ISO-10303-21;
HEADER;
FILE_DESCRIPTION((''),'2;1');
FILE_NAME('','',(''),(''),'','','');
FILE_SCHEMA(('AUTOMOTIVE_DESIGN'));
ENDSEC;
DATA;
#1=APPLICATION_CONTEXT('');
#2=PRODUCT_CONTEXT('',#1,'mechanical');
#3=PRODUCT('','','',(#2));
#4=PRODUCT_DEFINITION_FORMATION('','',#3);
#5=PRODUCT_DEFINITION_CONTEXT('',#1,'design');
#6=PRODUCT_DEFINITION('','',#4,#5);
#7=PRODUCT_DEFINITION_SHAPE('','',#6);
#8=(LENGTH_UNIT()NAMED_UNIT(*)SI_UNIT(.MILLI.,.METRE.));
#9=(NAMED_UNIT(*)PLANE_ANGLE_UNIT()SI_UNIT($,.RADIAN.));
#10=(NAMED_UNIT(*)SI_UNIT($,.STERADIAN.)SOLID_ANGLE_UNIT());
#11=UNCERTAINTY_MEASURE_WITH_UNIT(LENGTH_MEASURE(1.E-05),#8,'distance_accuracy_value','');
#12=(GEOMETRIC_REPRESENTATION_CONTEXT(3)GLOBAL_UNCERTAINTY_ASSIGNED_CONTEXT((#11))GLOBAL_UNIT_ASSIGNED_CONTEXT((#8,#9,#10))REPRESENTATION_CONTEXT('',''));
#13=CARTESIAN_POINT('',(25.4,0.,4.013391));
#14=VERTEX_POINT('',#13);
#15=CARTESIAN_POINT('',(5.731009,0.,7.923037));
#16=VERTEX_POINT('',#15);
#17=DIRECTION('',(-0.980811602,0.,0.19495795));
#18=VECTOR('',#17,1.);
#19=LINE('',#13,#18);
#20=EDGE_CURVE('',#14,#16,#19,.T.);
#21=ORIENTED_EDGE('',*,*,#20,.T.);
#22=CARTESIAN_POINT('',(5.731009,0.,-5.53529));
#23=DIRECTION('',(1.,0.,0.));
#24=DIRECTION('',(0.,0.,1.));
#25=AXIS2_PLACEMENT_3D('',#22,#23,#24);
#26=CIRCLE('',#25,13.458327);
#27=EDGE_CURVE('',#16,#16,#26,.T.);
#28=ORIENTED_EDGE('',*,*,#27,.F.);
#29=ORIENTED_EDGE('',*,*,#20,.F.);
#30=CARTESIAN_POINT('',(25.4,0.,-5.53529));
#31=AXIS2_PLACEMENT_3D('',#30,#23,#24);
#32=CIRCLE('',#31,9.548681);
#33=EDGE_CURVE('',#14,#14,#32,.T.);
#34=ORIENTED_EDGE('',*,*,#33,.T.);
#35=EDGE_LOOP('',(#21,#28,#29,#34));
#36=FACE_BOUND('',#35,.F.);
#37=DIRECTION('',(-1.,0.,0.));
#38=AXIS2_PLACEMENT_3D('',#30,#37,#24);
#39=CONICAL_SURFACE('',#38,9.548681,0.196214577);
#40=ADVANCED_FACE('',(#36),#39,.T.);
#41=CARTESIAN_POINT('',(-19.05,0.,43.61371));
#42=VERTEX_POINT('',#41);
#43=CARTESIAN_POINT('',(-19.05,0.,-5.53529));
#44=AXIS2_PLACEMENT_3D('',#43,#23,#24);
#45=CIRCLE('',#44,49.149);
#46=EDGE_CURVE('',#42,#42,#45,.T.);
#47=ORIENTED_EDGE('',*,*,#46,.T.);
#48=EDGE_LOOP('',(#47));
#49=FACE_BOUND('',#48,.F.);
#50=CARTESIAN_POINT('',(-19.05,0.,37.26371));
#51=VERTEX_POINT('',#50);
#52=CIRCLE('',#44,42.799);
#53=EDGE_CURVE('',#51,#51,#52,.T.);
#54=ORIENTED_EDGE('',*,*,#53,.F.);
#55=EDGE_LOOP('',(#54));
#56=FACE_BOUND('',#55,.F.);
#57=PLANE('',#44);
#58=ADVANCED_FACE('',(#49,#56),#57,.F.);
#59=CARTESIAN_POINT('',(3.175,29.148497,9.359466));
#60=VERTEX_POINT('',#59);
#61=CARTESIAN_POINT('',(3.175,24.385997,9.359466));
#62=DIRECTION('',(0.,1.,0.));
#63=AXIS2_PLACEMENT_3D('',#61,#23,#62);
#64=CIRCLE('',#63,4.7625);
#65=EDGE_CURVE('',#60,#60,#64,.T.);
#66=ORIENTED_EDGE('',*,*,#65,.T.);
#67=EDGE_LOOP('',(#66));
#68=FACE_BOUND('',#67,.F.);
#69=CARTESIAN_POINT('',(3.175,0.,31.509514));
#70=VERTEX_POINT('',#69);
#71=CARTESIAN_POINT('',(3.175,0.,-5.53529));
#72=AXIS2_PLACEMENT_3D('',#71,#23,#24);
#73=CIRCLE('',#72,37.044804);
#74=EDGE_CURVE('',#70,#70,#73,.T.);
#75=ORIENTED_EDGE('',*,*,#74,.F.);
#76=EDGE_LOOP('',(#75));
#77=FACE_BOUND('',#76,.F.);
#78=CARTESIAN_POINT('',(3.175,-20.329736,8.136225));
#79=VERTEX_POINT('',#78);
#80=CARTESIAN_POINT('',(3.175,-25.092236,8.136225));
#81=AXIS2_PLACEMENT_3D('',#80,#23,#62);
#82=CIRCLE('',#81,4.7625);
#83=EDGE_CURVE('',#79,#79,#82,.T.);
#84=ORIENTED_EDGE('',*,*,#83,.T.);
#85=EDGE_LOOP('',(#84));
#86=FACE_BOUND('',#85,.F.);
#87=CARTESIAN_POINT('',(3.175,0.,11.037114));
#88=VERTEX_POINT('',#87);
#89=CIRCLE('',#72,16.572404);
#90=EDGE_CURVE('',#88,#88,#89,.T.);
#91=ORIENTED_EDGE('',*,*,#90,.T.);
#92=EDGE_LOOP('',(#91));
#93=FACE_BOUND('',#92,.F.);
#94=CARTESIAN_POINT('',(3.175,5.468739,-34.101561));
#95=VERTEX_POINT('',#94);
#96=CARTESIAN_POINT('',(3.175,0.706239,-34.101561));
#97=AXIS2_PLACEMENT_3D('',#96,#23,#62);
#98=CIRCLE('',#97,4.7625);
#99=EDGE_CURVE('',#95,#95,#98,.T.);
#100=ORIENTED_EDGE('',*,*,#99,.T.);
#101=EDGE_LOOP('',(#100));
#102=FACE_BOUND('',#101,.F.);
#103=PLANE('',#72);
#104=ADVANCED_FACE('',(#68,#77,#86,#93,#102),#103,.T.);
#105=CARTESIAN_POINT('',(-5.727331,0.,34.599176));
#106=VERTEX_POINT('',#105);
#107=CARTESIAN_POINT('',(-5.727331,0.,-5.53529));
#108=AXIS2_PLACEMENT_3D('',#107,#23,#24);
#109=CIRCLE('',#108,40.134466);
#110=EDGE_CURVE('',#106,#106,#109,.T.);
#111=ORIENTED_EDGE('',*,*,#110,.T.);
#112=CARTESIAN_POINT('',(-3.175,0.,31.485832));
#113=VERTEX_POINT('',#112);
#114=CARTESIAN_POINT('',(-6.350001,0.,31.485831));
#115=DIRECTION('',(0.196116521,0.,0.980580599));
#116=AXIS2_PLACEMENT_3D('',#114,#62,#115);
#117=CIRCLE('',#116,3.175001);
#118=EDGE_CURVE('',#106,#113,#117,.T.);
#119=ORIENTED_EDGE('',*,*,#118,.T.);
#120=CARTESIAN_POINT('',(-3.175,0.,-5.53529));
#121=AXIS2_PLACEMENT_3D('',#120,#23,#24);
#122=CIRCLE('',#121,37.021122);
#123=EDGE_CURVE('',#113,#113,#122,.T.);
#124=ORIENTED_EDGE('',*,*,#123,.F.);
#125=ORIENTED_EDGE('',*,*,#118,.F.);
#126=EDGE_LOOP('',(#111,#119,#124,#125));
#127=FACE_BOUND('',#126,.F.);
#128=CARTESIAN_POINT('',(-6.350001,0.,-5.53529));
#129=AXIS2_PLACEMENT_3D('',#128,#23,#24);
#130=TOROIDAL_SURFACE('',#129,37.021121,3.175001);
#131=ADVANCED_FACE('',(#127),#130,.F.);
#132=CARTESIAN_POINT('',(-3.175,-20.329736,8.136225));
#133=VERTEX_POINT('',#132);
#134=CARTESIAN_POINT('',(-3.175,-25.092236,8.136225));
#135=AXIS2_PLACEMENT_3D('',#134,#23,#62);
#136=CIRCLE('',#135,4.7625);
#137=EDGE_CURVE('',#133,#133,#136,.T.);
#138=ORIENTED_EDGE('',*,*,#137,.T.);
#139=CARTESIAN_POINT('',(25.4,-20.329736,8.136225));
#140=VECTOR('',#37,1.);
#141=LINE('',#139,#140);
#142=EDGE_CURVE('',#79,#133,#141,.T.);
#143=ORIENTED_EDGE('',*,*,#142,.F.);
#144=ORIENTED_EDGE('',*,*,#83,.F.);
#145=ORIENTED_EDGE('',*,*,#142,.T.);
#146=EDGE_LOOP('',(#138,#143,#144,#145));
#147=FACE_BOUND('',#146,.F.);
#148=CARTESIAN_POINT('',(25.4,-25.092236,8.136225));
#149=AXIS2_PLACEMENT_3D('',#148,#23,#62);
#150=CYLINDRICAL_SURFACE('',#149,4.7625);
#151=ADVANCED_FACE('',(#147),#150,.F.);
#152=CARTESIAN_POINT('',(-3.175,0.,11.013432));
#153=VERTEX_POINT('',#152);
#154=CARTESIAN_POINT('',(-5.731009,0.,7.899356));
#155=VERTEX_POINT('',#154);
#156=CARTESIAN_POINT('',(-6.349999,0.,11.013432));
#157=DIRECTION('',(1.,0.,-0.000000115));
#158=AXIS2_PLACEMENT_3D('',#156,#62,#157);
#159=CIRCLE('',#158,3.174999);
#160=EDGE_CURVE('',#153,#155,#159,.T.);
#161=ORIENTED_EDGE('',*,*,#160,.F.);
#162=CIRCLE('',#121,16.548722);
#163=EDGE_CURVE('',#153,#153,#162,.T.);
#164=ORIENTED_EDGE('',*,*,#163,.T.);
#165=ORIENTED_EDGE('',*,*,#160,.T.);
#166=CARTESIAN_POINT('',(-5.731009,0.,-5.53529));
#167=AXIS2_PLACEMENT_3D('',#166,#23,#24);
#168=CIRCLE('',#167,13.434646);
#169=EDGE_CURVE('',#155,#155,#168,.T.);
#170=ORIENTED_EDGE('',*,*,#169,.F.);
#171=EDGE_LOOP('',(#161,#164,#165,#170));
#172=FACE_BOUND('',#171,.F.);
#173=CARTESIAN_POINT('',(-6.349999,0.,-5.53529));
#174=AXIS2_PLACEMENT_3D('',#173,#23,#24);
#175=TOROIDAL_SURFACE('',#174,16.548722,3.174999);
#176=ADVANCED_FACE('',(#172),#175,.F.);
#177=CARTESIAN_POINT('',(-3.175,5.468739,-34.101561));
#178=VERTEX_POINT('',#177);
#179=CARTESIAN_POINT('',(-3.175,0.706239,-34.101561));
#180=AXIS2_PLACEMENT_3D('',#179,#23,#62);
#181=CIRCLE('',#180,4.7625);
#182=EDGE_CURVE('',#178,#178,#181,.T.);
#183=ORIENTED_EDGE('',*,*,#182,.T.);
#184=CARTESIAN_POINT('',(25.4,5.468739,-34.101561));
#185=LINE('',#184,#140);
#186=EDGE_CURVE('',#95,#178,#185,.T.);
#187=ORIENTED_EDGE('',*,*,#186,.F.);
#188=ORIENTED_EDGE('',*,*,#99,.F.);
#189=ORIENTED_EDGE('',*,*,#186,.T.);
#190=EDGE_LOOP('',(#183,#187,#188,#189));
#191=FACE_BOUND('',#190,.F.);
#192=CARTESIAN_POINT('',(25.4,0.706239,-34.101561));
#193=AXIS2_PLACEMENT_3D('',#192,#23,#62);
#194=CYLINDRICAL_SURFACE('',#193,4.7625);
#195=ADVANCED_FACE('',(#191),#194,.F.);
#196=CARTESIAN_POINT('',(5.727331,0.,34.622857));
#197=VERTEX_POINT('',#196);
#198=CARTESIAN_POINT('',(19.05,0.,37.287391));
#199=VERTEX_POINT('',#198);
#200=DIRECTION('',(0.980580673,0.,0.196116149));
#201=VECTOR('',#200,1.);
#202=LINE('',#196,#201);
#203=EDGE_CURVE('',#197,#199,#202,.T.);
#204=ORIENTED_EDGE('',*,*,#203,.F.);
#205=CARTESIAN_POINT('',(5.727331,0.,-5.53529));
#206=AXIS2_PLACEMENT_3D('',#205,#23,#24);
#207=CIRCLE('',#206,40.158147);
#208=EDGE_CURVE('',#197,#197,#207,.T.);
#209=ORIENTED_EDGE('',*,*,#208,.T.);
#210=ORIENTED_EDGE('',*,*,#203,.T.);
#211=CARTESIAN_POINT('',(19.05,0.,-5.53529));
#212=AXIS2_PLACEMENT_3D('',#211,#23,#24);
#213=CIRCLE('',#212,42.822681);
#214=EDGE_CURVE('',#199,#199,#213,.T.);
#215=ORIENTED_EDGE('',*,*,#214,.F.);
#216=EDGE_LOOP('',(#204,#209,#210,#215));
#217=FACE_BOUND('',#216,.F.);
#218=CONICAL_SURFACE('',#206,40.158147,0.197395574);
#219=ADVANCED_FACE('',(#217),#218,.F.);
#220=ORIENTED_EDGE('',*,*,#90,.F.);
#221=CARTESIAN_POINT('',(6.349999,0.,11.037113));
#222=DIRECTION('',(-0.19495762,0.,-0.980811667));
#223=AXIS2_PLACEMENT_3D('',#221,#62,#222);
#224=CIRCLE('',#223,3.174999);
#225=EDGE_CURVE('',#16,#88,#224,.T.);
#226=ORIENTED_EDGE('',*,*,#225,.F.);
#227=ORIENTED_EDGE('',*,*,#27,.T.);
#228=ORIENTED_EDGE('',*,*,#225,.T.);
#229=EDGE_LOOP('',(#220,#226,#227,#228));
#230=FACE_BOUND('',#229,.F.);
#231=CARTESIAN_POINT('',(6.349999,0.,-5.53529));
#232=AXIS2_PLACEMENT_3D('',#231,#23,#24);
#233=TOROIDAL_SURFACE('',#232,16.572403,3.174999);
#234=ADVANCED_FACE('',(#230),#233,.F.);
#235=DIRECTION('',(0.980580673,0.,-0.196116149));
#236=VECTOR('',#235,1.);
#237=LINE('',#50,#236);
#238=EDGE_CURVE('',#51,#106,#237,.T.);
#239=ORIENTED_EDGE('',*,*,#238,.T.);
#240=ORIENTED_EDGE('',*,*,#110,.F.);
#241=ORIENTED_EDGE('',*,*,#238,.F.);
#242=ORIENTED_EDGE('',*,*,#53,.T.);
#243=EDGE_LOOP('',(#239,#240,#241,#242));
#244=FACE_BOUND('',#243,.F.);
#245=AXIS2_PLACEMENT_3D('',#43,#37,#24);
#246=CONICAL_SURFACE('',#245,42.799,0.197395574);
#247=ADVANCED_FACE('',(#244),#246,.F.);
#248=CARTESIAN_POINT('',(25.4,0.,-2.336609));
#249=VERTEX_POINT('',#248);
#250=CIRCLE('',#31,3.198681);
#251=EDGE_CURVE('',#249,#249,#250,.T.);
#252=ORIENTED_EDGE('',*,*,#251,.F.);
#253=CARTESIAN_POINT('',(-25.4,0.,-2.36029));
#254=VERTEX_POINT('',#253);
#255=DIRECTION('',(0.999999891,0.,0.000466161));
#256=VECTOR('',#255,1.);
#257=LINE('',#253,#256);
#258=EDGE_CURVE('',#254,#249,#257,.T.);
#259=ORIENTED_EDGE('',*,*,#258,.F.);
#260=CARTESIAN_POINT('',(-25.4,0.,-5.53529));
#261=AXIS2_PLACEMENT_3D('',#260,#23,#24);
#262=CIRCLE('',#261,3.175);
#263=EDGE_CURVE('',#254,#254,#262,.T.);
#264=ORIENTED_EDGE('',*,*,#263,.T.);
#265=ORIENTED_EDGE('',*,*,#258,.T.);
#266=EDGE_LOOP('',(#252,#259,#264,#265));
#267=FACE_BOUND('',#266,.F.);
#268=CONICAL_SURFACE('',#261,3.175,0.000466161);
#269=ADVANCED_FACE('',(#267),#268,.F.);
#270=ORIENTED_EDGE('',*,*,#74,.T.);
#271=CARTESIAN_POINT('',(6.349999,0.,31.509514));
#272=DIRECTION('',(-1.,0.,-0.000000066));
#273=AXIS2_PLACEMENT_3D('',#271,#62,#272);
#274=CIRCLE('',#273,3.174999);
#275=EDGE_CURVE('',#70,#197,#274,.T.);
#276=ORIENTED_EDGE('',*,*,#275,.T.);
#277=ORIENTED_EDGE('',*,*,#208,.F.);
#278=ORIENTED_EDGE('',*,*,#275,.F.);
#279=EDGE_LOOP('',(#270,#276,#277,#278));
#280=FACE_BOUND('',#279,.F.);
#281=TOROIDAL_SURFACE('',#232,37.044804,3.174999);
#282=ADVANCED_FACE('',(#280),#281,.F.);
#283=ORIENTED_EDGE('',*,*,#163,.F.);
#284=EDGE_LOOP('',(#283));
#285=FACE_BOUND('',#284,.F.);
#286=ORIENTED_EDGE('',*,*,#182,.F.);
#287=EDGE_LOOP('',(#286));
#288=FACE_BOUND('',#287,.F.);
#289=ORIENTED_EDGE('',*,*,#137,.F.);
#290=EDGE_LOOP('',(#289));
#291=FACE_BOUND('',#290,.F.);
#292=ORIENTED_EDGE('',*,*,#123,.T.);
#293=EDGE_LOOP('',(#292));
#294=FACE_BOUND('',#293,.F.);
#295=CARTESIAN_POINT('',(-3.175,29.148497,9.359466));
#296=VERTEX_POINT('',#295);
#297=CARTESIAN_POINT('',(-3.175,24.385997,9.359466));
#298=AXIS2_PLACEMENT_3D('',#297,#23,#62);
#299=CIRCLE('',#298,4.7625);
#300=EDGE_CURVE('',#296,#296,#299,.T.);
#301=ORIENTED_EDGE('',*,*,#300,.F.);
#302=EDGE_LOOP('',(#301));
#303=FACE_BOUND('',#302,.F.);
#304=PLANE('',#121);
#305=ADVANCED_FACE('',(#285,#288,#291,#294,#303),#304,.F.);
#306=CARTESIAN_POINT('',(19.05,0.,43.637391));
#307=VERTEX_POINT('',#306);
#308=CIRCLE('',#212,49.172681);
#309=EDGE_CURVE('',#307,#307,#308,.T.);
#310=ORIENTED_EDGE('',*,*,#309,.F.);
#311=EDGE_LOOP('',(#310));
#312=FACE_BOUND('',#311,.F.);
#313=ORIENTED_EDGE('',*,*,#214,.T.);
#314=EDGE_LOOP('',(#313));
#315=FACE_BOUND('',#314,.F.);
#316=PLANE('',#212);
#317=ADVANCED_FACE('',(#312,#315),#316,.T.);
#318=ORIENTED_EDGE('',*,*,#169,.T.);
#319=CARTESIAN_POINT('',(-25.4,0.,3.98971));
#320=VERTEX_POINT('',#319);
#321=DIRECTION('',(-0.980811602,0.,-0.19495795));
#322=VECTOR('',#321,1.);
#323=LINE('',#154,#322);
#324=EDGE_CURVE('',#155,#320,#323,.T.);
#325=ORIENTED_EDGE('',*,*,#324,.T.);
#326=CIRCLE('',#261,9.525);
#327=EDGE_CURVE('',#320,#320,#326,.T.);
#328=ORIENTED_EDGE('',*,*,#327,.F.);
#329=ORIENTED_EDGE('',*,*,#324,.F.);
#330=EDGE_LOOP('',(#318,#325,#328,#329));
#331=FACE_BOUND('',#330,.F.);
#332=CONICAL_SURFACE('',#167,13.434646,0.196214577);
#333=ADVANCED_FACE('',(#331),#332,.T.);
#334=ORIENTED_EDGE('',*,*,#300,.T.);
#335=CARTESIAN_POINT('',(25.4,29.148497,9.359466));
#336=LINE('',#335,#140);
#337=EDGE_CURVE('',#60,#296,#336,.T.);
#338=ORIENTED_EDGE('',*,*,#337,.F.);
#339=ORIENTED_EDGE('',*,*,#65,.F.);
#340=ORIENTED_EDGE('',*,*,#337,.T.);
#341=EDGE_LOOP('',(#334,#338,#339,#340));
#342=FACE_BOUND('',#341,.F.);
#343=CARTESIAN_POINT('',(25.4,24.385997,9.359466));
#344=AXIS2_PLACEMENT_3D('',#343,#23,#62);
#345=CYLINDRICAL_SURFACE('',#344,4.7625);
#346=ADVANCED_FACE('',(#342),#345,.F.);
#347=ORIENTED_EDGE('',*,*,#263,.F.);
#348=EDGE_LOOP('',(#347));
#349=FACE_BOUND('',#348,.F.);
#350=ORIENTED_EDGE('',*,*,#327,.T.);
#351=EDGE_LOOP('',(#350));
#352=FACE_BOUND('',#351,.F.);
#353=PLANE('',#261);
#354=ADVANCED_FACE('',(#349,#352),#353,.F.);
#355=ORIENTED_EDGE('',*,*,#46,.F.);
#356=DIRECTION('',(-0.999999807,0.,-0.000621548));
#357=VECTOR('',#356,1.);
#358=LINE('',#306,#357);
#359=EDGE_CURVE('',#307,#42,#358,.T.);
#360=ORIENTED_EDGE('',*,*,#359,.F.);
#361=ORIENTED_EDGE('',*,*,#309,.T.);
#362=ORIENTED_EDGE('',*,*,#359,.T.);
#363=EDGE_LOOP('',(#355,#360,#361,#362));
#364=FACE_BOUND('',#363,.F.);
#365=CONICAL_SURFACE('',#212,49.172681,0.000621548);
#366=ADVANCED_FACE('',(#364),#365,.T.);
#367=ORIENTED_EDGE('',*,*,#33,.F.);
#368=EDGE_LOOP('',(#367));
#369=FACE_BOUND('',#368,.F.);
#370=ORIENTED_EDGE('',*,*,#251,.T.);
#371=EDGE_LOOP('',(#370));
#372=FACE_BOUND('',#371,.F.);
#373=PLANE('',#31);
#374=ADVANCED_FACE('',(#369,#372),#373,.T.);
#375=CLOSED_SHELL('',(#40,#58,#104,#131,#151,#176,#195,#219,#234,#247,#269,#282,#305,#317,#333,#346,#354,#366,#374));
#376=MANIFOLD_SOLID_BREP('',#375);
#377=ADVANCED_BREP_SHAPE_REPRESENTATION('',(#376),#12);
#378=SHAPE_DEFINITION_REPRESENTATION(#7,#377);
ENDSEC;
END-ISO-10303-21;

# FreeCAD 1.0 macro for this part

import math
import FreeCAD as App
import Part
import Sketcher

V = App.Vector
Q = App.Units.Quantity

doc = App.newDocument("Part")
body = doc.addObject("PartDesign::Body", "Body")

# Sketch on XZ plane
sketch1 = body.newObject("Sketcher::SketchObject", "Sketch")
sketch1.AttachmentSupport = (doc.getObject("XZ_Plane"), [""])
sketch1.MapMode = "FlatFace"
sketch1.addGeometry(Part.LineSegment(V(-25.4, -2.4, 0), V(25.4, -2.3, 0)), False)
sketch1.addGeometry(Part.LineSegment(V(25.4, -2.3, 0), V(25.4, 4, 0)), False)
sketch1.addGeometry(Part.LineSegment(V(25.4, 4, 0), V(5.7, 7.9, 0)), False)
sketch1.addGeometry(Part.ArcOfCircle(Part.Circle(V(6.3, 11, 0), V(0, 0, 1), 3.2), math.radians(180), math.radians(259)), False)
sketch1.addGeometry(Part.LineSegment(V(3.2, 11, 0), V(3.2, 31.5, 0)), False)
sketch1.addGeometry(Part.ArcOfCircle(Part.Circle(V(6.3, 31.5, 0), V(0, 0, 1), 3.2), math.radians(101), math.radians(180)), False)
sketch1.addGeometry(Part.LineSegment(V(5.7, 34.6, 0), V(19.1, 37.3, 0)), False)
sketch1.addGeometry(Part.LineSegment(V(19.1, 37.3, 0), V(19.1, 43.6, 0)), False)
sketch1.addGeometry(Part.LineSegment(V(19.1, 43.6, 0), V(-19.1, 43.6, 0)), False)
sketch1.addGeometry(Part.LineSegment(V(-19.1, 43.6, 0), V(-19.1, 37.3, 0)), False)
sketch1.addGeometry(Part.LineSegment(V(-19.1, 37.3, 0), V(-5.7, 34.6, 0)), False)
sketch1.addGeometry(Part.ArcOfCircle(Part.Circle(V(-6.4, 31.5, 0), V(0, 0, 1), 3.2), math.radians(0), math.radians(79)), False)
sketch1.addGeometry(Part.LineSegment(V(-3.2, 31.5, 0), V(-3.2, 11, 0)), False)
sketch1.addGeometry(Part.ArcOfCircle(Part.Circle(V(-6.3, 11, 0), V(0, 0, 1), 3.2), math.radians(-79), math.radians(0)), False)
sketch1.addGeometry(Part.LineSegment(V(-5.7, 7.9, 0), V(-25.4, 4, 0)), False)
sketch1.addGeometry(Part.LineSegment(V(-25.4, 4, 0), V(-25.4, -2.4, 0)), False)
sketch1.addGeometry(Part.LineSegment(V(-25.4, -5.5, 0), V(25.4, -5.5, 0)), True)  # axis
sketch1.addConstraint(Sketcher.Constraint("Coincident", 0, 2, 1, 1))
sketch1.addConstraint(Sketcher.Constraint("Coincident", 1, 2, 2, 1))
sketch1.addConstraint(Sketcher.Constraint("Tangent", 2, 2, 3, 2))
sketch1.addConstraint(Sketcher.Constraint("Tangent", 3, 1, 4, 1))
sketch1.addConstraint(Sketcher.Constraint("Tangent", 4, 2, 5, 2))
sketch1.addConstraint(Sketcher.Constraint("Tangent", 5, 1, 6, 1))
sketch1.addConstraint(Sketcher.Constraint("Coincident", 6, 2, 7, 1))
sketch1.addConstraint(Sketcher.Constraint("Coincident", 7, 2, 8, 1))
sketch1.addConstraint(Sketcher.Constraint("Coincident", 8, 2, 9, 1))
sketch1.addConstraint(Sketcher.Constraint("Coincident", 9, 2, 10, 1))
sketch1.addConstraint(Sketcher.Constraint("Tangent", 10, 2, 11, 2))
sketch1.addConstraint(Sketcher.Constraint("Tangent", 11, 1, 12, 1))
sketch1.addConstraint(Sketcher.Constraint("Tangent", 12, 2, 13, 2))
sketch1.addConstraint(Sketcher.Constraint("Tangent", 13, 1, 14, 1))
sketch1.addConstraint(Sketcher.Constraint("Coincident", 14, 2, 15, 1))
sketch1.addConstraint(Sketcher.Constraint("Coincident", 15, 2, 0, 1))
sketch1.addConstraint(Sketcher.Constraint("Vertical", 1))
sketch1.addConstraint(Sketcher.Constraint("Vertical", 4))
sketch1.addConstraint(Sketcher.Constraint("Vertical", 7))
sketch1.addConstraint(Sketcher.Constraint("Vertical", 9))
sketch1.addConstraint(Sketcher.Constraint("Vertical", 12))
sketch1.addConstraint(Sketcher.Constraint("Vertical", 15))
sketch1.addConstraint(Sketcher.Constraint("Horizontal", 16))
sketch1.addConstraint(Sketcher.Constraint("Equal", 3, 5))
sketch1.addConstraint(Sketcher.Constraint("Equal", 3, 11))
sketch1.addConstraint(Sketcher.Constraint("Equal", 11, 13))
sketch1.addConstraint(Sketcher.Constraint("Vertical", 15, 2, 16, 1))
sketch1.addConstraint(Sketcher.Constraint("Vertical", 1, 2, 16, 2))
sketch1.addConstraint(Sketcher.Constraint("Equal", 1, 7))
sketch1.addConstraint(Sketcher.Constraint("Equal", 7, 9))
sketch1.addConstraint(Sketcher.Constraint("Equal", 4, 12))
sketch1.addConstraint(Sketcher.Constraint("Equal", 9, 15))
sketch1.addConstraint(Sketcher.Constraint("Equal", 6, 10))
sketch1.addConstraint(Sketcher.Constraint("Equal", 2, 14))
sketch1.addConstraint(Sketcher.Constraint("DistanceX", 16, 1, 16, 2, Q("2 in")))
sketch1.addConstraint(Sketcher.Constraint("DistanceX", -1, 1, 0, 2, Q("1 in")))
sketch1.addConstraint(Sketcher.Constraint("Radius", 3, Q("0.125 in")))
sketch1.addConstraint(Sketcher.Constraint("DistanceX", 11, 3, 6, 2, Q("1 in")))
sketch1.addConstraint(Sketcher.Constraint("DistanceX", 8, 2, 5, 3, Q("1 in")))
sketch1.addConstraint(Sketcher.Constraint("DistanceY", 1, 1, 1, 2, Q("0.25 in")))
sketch1.addConstraint(Sketcher.Constraint("DistanceX", 11, 3, 5, 3, Q("0.5 in")))
sketch1.addConstraint(Sketcher.Constraint("DistanceY", 4, 1, 4, 2, Q("0.806 in")))
sketch1.addConstraint(Sketcher.Constraint("DistanceX", -1, 1, 3, 3, Q("0.25 in")))
sketch1.addConstraint(Sketcher.Constraint("DistanceY", 16, 1, 15, 2, Q("0.125 in")))
sketch1.addConstraint(Sketcher.Constraint("Distance", 2, 20.053791))
sketch1.addConstraint(Sketcher.Constraint("Distance", 6, 13.58651))
sketch1.addConstraint(Sketcher.Constraint("DistanceY", -1, 1, 11, 3, 31.485831))
sketch1.addConstraint(Sketcher.Constraint("DistanceY", 0, 2, -1, 1, 2.336609))
revolution = body.newObject("PartDesign::Revolution", "Revolution")
revolution.Profile = sketch1
revolution.ReferenceAxis = (sketch1, ["Axis0"])
revolution.Angle = 360

# Sketch on YZ plane
sketch2 = body.newObject("Sketcher::SketchObject", "Sketch001")
sketch2.AttachmentSupport = (doc.getObject("YZ_Plane"), [""])
sketch2.MapMode = "FlatFace"
sketch2.AttachmentOffset = App.Placement(V(0, 0, 1 * 25.4), App.Rotation())
sketch2.addGeometry(Part.Circle(V(-25.1, 8.1, 0), V(0, 0, 1), 4.8), False)
sketch2.addConstraint(Sketcher.Constraint("Diameter", 0, Q("0.375 in")))
sketch2.addConstraint(Sketcher.Constraint("DistanceX", 0, 3, -1, 1, 25.092236))
sketch2.addConstraint(Sketcher.Constraint("DistanceY", -1, 1, 0, 3, 8.136225))
pocket1 = body.newObject("PartDesign::Pocket", "Pocket")
pocket1.Profile = sketch2
pocket1.Type = "ThroughAll"

# Sketch on YZ plane
sketch3 = body.newObject("Sketcher::SketchObject", "Sketch002")
sketch3.AttachmentSupport = (doc.getObject("YZ_Plane"), [""])
sketch3.MapMode = "FlatFace"
sketch3.AttachmentOffset = App.Placement(V(0, 0, 1 * 25.4), App.Rotation())
sketch3.addGeometry(Part.Circle(V(0.7, -34.1, 0), V(0, 0, 1), 4.8), False)
sketch3.addConstraint(Sketcher.Constraint("Diameter", 0, Q("0.375 in")))
sketch3.addConstraint(Sketcher.Constraint("DistanceX", -1, 1, 0, 3, 0.706239))
sketch3.addConstraint(Sketcher.Constraint("DistanceY", 0, 3, -1, 1, 34.101561))
pocket2 = body.newObject("PartDesign::Pocket", "Pocket001")
pocket2.Profile = sketch3
pocket2.Type = "ThroughAll"

# Sketch on YZ plane
sketch4 = body.newObject("Sketcher::SketchObject", "Sketch003")
sketch4.AttachmentSupport = (doc.getObject("YZ_Plane"), [""])
sketch4.MapMode = "FlatFace"
sketch4.AttachmentOffset = App.Placement(V(0, 0, 1 * 25.4), App.Rotation())
sketch4.addGeometry(Part.Circle(V(24.4, 9.4, 0), V(0, 0, 1), 4.8), False)
sketch4.addConstraint(Sketcher.Constraint("Diameter", 0, Q("0.375 in")))
sketch4.addConstraint(Sketcher.Constraint("DistanceX", -1, 1, 0, 3, 24.385997))
sketch4.addConstraint(Sketcher.Constraint("DistanceY", -1, 1, 0, 3, 9.359466))
pocket3 = body.newObject("PartDesign::Pocket", "Pocket002")
pocket3.Profile = sketch4
pocket3.Type = "ThroughAll"

doc.recompute()
